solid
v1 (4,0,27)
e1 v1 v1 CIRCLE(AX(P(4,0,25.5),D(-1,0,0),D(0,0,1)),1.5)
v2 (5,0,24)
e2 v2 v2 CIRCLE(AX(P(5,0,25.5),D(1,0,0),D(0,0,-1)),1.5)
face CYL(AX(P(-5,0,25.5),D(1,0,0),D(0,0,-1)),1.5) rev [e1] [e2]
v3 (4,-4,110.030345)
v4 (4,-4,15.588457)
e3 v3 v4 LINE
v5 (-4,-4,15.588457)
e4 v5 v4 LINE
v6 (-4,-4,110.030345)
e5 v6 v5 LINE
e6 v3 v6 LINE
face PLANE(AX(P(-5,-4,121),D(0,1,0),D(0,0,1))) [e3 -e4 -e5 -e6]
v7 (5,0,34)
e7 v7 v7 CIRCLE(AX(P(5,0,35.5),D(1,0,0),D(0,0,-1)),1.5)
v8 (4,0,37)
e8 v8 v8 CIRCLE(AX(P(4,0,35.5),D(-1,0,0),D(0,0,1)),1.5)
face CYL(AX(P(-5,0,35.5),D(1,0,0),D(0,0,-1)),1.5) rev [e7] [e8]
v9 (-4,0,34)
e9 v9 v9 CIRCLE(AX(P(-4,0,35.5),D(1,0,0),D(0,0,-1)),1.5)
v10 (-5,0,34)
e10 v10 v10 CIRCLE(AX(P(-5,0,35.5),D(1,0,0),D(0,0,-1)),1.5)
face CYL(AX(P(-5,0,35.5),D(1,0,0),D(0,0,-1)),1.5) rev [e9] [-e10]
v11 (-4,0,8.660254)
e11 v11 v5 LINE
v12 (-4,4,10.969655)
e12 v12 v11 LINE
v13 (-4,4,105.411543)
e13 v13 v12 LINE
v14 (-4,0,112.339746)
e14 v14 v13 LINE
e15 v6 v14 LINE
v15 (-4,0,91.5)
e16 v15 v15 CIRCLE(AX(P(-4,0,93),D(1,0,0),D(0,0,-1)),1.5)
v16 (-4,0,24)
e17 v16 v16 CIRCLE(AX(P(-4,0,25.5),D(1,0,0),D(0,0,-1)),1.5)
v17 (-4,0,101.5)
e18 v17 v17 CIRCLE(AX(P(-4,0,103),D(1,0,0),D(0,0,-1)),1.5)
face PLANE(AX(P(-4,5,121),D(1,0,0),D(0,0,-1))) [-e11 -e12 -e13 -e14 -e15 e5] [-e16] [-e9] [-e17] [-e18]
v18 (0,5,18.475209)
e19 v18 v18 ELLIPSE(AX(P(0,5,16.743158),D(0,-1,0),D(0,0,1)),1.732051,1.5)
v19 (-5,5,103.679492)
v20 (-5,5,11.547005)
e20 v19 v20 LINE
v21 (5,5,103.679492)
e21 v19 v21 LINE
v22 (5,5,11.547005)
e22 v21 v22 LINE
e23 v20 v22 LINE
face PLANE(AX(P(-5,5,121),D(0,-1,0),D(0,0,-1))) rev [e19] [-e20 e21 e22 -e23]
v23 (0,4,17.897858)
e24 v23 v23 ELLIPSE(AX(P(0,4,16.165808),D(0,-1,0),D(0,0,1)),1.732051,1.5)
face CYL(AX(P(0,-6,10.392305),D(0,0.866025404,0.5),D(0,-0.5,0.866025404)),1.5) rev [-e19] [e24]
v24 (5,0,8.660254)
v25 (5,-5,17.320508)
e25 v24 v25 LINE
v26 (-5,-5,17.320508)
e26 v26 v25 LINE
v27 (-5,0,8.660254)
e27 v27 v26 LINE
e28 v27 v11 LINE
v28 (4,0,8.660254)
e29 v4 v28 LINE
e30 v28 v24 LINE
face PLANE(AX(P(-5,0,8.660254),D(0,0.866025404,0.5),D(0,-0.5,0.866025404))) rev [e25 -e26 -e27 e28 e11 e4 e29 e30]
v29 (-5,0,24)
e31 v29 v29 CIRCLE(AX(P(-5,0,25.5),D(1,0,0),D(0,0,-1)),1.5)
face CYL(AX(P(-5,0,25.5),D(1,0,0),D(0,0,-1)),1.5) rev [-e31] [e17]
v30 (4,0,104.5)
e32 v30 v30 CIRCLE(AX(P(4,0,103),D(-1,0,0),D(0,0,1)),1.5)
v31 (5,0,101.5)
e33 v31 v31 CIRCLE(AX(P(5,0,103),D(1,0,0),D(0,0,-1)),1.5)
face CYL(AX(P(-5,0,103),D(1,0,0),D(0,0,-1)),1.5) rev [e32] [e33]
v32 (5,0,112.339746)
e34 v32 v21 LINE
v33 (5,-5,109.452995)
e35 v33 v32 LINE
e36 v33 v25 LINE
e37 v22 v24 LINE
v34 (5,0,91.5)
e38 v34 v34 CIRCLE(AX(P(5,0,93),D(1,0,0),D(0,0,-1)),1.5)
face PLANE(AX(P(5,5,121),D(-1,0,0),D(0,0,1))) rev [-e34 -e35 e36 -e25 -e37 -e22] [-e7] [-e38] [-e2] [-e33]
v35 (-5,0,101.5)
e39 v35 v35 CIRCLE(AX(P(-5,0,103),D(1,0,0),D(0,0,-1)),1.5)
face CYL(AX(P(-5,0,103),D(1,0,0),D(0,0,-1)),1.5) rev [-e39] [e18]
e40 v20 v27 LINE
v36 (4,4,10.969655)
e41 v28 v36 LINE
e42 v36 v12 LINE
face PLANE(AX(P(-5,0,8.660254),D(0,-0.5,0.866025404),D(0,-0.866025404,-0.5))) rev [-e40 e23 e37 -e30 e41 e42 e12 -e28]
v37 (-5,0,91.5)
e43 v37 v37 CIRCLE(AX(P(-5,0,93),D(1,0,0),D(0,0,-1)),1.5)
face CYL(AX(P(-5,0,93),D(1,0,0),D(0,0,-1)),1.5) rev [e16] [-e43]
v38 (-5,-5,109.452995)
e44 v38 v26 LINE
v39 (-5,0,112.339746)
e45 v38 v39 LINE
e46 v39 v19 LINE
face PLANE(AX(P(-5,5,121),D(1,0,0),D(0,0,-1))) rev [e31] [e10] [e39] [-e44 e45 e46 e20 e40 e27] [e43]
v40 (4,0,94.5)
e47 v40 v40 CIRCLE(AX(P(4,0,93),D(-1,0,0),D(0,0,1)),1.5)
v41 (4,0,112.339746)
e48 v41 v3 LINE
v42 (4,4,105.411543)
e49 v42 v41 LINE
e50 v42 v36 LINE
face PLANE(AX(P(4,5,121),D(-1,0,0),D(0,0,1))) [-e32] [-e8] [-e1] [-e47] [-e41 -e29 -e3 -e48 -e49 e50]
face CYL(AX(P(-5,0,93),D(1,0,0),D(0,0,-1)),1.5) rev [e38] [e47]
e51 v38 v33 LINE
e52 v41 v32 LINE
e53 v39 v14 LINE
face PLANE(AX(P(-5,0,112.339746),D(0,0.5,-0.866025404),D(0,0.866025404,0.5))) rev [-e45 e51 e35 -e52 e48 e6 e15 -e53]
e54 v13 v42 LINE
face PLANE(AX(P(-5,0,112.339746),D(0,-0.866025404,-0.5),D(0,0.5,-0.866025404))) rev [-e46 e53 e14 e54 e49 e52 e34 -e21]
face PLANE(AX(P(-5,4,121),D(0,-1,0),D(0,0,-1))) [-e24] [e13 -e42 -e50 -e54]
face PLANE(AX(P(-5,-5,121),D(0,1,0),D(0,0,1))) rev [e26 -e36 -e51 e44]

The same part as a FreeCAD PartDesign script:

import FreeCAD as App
import Part
import Sketcher
from FreeCAD import Vector
Q = App.Units.Quantity


def add_polygon(sketch, points):
    """Adds a closed chain of lines whose ends are joined by coincident constraints."""
    first, n = sketch.GeometryCount, len(points)
    for a, b in zip(points, points[1:] + points[:1]):
        sketch.addGeometry(Part.LineSegment(App.Vector(*a, 0), App.Vector(*b, 0)), False)
    for i in range(n):
        sketch.addConstraint(Sketcher.Constraint("Coincident", first + i, 2, first + (i + 1) % n, 1))

doc = App.newDocument("Part")
body = doc.addObject("PartDesign::Body", "Body")

sketch1 = body.newObject("Sketcher::SketchObject", "Sketch")
sketch1.AttachmentSupport = (doc.getObject("XY_Plane"), [""])
sketch1.MapMode = "FlatFace"
add_polygon(sketch1, [(-5, 5), (-5, -5), (5, -5), (5, 5)])
add_polygon(sketch1, [(4, -4), (-4, -4), (-4, 4), (4, 4)])
sketch1.addConstraint([
    Sketcher.Constraint("Vertical", 0),
    Sketcher.Constraint("Horizontal", 1),
    Sketcher.Constraint("Vertical", 2),
    Sketcher.Constraint("Horizontal", 3),
    Sketcher.Constraint("Horizontal", 4),
    Sketcher.Constraint("Vertical", 5),
    Sketcher.Constraint("Horizontal", 6),
    Sketcher.Constraint("Vertical", 7),
    Sketcher.Constraint("Symmetric", 0, 2, 2, 2, -1, 1),
    Sketcher.Constraint("Symmetric", 4, 2, 6, 2, -1, 1),
    Sketcher.Constraint("Equal", 3, 0),
    Sketcher.Constraint("Equal", 6, 5),
    Sketcher.Constraint("DistanceX", 1, 1, 1, 2, Q("10 mm")),
    Sketcher.Constraint("DistanceX", 4, 2, 4, 1, Q("8 mm")),
])
pad1 = body.newObject("PartDesign::Pad", "Pad")
pad1.Profile = sketch1
pad1.Length = 121

sketch2 = body.newObject("Sketcher::SketchObject", "Sketch001")
sketch2.AttachmentSupport = (doc.getObject("YZ_Plane"), [""])
sketch2.MapMode = "FlatFace"
sketch2.AttachmentOffset = App.Placement(Vector(0, 0, 5), App.Rotation())
sketch2.addGeometry(Part.Circle(Vector(0, 103, 0), Vector(0, 0, 1), 1.5), False)
sketch2.addGeometry(Part.Circle(Vector(0, 35.5, 0), Vector(0, 0, 1), 1.5), False)
sketch2.addGeometry(Part.Circle(Vector(0, 25.5, 0), Vector(0, 0, 1), 1.5), False)
sketch2.addGeometry(Part.Circle(Vector(0, 93, 0), Vector(0, 0, 1), 1.5), False)
add_polygon(sketch2, [(0, 112.3), (5, 103.7), (5, 121), (-5, 121), (-5, 109.5)])
add_polygon(sketch2, [(0, 8.7), (-5, 17.3), (-5, 0), (5, 0), (5, 11.5)])
sketch2.addConstraint([
    Sketcher.Constraint("Vertical", 5),
    Sketcher.Constraint("Horizontal", 6),
    Sketcher.Constraint("Vertical", 7),
    Sketcher.Constraint("Vertical", 10),
    Sketcher.Constraint("Horizontal", 11),
    Sketcher.Constraint("Vertical", 12),
    Sketcher.Constraint("Equal", 0, 1),
    Sketcher.Constraint("Equal", 1, 2),
    Sketcher.Constraint("Equal", 2, 3),
    Sketcher.Constraint("Symmetric", 10, 2, 11, 2, -1, 1),
    Sketcher.Constraint("PointOnObject", 0, 3, -2),
    Sketcher.Constraint("PointOnObject", 1, 3, -2),
    Sketcher.Constraint("PointOnObject", 2, 3, -2),
    Sketcher.Constraint("PointOnObject", 3, 3, -2),
    Sketcher.Constraint("PointOnObject", 8, 2, -2),
    Sketcher.Constraint("PointOnObject", 13, 2, -2),
    Sketcher.Constraint("Perpendicular", 4, 8),
    Sketcher.Constraint("Perpendicular", 8, 9),
    Sketcher.Constraint("Perpendicular", 9, 13),
    Sketcher.Constraint("Vertical", 7, 2, 9, 2),
    Sketcher.Constraint("Vertical", 5, 2, 11, 2),
    Sketcher.Constraint("Equal", 5, 10),
    Sketcher.Constraint("Diameter", 0, Q("3 mm")),
    Sketcher.Constraint("DistanceX", 6, 2, 6, 1, Q("10 mm")),
    Sketcher.Constraint("Angle", 4, Q("-60 deg")),
    Sketcher.Constraint("DistanceY", -1, 1, 0, 3, Q("103 mm")),
    Sketcher.Constraint("DistanceY", -1, 1, 3, 3, Q("93 mm")),
    Sketcher.Constraint("DistanceY", -1, 1, 5, 2, Q("121 mm")),
    Sketcher.Constraint("DistanceY", 2, 3, 1, 3, Q("10 mm")),
    Sketcher.Constraint("DistanceY", -1, 1, 1, 3, Q("35.5 mm")),
    Sketcher.Constraint("DistanceY", 5, 1, 5, 2, Q("17.320508 mm")),
])
pocket1 = body.newObject("PartDesign::Pocket", "Pocket")
pocket1.Profile = sketch2
pocket1.Type = "ThroughAll"

sketch3 = body.newObject("Sketcher::SketchObject", "Sketch002")
sketch3.Placement = App.Placement(Vector(0, 8.75, 5.051815), App.Rotation(Vector(1, 0, 0), Vector(0, 0.5, -0.866025404), Vector(0, 0.866025404, 0.5), "ZXY"))
sketch3.addGeometry(Part.Circle(Vector(0, -12, 0), Vector(0, 0, 1), 1.5), False)
sketch3.addConstraint([
    Sketcher.Constraint("PointOnObject", 0, 3, -2),
    Sketcher.Constraint("Diameter", 0, Q("3 mm")),
    Sketcher.Constraint("DistanceY", 0, 3, -1, 1, Q("12 mm")),
])
pocket2 = body.newObject("PartDesign::Pocket", "Pocket001")
pocket2.Profile = sketch3
pocket2.Type = "ThroughAll"
pocket2.Midplane = True

doc.recompute()
